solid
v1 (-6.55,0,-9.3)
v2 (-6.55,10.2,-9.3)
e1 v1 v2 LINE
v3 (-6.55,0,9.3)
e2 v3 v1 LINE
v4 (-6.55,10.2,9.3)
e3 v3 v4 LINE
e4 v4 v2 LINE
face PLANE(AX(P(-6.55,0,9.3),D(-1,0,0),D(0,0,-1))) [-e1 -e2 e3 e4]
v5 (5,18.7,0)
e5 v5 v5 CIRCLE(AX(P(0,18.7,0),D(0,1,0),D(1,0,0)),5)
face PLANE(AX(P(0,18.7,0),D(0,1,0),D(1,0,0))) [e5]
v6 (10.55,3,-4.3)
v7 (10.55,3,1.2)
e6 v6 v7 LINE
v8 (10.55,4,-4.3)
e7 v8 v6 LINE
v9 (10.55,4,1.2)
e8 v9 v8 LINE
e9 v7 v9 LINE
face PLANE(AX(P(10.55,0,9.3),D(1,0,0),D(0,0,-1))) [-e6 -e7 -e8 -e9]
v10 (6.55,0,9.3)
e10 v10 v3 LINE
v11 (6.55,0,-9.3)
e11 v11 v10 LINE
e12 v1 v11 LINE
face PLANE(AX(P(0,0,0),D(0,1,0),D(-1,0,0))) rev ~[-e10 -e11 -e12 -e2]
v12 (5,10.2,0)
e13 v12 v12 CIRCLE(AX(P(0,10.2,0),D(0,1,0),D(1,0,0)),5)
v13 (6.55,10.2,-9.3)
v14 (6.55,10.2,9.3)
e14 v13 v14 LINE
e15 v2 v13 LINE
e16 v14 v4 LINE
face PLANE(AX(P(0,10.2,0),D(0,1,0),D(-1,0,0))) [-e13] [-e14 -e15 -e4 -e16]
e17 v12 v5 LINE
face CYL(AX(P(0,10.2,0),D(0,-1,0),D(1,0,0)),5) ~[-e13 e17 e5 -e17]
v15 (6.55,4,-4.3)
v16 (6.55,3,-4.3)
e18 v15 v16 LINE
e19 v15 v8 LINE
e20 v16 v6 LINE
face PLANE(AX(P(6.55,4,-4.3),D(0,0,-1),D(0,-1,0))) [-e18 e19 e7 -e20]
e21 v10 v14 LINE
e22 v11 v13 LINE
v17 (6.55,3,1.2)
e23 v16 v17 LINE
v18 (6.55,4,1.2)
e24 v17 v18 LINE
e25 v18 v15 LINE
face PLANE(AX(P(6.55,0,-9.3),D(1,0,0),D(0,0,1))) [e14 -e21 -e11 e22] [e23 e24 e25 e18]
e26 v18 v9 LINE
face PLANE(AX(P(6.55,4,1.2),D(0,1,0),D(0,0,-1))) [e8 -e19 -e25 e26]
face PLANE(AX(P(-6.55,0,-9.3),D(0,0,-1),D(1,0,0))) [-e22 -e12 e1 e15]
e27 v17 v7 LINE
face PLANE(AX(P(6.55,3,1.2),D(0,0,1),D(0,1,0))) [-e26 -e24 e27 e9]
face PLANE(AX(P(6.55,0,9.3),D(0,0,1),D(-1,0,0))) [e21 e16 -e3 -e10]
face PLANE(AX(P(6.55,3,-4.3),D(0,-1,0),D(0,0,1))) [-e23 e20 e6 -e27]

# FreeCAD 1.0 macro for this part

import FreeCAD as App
import Part
import Sketcher
from FreeCAD import Vector
Q = App.Units.Quantity


def add_polygon(sketch, points):
    """Adds a closed chain of lines whose ends are joined by coincident constraints."""
    first, n = sketch.GeometryCount, len(points)
    for a, b in zip(points, points[1:] + points[:1]):
        sketch.addGeometry(Part.LineSegment(App.Vector(*a, 0), App.Vector(*b, 0)), False)
    for i in range(n):
        sketch.addConstraint(Sketcher.Constraint("Coincident", first + i, 2, first + (i + 1) % n, 1))

doc = App.newDocument("Part")
body = doc.addObject("PartDesign::Body", "Body")

# Sketch on XZ plane
sketch1 = doc.addObject("Sketcher::SketchObject", "Sketch")
body.addObject(sketch1)
sketch1.AttachmentSupport = (doc.XZ_Plane, [""])
sketch1.MapMode = "FlatFace"
add_polygon(sketch1, [(-6.55, 9.3), (6.55, 9.3), (6.55, -9.3), (-6.55, -9.3)])  # lines 0-3
sketch1.addConstraint([
    Sketcher.Constraint("Horizontal", 0),
    Sketcher.Constraint("Vertical", 1),
    Sketcher.Constraint("Horizontal", 2),
    Sketcher.Constraint("Vertical", 3),
    Sketcher.Constraint("Symmetric", 0, 2, 2, 2, -1, 1),
    Sketcher.Constraint("DistanceX", 0, 1, 0, 2, Q("13.1 mm")),
    Sketcher.Constraint("DistanceY", 1, 2, 1, 1, Q("18.6 mm")),
])
pad1 = doc.addObject("PartDesign::Pad", "Pad")
body.addObject(pad1)
pad1.Profile = sketch1
pad1.Length = 10.2
pad1.Reversed = True

# Sketch on XZ plane
sketch2 = doc.addObject("Sketcher::SketchObject", "Sketch001")
body.addObject(sketch2)
sketch2.AttachmentSupport = (doc.XZ_Plane, [""])
sketch2.MapMode = "FlatFace"
sketch2.AttachmentOffset = App.Placement(Vector(0, 0, -10.2), App.Rotation())
sketch2.addGeometry(Part.Circle(Vector(0, 0, 0), Vector(0, 0, 1), 5), False)
sketch2.addConstraint([
    Sketcher.Constraint("Coincident", 0, 3, -1, 1),
    Sketcher.Constraint("Diameter", 0, Q("10 mm")),
])
pad2 = doc.addObject("PartDesign::Pad", "Pad001")
body.addObject(pad2)
pad2.Profile = sketch2
pad2.Length = 8.5
pad2.Reversed = True

# Sketch on YZ plane
sketch3 = doc.addObject("Sketcher::SketchObject", "Sketch002")
body.addObject(sketch3)
sketch3.AttachmentSupport = (doc.YZ_Plane, [""])
sketch3.MapMode = "FlatFace"
sketch3.AttachmentOffset = App.Placement(Vector(0, 0, 6.55), App.Rotation())
add_polygon(sketch3, [(3, 1.2), (3, -4.3), (4, -4.3), (4, 1.2)])  # lines 0-3
sketch3.addConstraint([
    Sketcher.Constraint("Vertical", 0),
    Sketcher.Constraint("Horizontal", 1),
    Sketcher.Constraint("Vertical", 2),
    Sketcher.Constraint("Horizontal", 3),
    Sketcher.Constraint("DistanceX", 1, 1, 1, 2, Q("1 mm")),
    Sketcher.Constraint("DistanceY", 0, 2, 0, 1, Q("5.5 mm")),
    Sketcher.Constraint("DistanceX", -1, 1, 0, 2, Q("3 mm")),
    Sketcher.Constraint("DistanceY", 0, 2, -1, 1, Q("4.3 mm")),
])
pad3 = doc.addObject("PartDesign::Pad", "Pad002")
body.addObject(pad3)
pad3.Profile = sketch3
pad3.Length = 4

doc.recompute()
